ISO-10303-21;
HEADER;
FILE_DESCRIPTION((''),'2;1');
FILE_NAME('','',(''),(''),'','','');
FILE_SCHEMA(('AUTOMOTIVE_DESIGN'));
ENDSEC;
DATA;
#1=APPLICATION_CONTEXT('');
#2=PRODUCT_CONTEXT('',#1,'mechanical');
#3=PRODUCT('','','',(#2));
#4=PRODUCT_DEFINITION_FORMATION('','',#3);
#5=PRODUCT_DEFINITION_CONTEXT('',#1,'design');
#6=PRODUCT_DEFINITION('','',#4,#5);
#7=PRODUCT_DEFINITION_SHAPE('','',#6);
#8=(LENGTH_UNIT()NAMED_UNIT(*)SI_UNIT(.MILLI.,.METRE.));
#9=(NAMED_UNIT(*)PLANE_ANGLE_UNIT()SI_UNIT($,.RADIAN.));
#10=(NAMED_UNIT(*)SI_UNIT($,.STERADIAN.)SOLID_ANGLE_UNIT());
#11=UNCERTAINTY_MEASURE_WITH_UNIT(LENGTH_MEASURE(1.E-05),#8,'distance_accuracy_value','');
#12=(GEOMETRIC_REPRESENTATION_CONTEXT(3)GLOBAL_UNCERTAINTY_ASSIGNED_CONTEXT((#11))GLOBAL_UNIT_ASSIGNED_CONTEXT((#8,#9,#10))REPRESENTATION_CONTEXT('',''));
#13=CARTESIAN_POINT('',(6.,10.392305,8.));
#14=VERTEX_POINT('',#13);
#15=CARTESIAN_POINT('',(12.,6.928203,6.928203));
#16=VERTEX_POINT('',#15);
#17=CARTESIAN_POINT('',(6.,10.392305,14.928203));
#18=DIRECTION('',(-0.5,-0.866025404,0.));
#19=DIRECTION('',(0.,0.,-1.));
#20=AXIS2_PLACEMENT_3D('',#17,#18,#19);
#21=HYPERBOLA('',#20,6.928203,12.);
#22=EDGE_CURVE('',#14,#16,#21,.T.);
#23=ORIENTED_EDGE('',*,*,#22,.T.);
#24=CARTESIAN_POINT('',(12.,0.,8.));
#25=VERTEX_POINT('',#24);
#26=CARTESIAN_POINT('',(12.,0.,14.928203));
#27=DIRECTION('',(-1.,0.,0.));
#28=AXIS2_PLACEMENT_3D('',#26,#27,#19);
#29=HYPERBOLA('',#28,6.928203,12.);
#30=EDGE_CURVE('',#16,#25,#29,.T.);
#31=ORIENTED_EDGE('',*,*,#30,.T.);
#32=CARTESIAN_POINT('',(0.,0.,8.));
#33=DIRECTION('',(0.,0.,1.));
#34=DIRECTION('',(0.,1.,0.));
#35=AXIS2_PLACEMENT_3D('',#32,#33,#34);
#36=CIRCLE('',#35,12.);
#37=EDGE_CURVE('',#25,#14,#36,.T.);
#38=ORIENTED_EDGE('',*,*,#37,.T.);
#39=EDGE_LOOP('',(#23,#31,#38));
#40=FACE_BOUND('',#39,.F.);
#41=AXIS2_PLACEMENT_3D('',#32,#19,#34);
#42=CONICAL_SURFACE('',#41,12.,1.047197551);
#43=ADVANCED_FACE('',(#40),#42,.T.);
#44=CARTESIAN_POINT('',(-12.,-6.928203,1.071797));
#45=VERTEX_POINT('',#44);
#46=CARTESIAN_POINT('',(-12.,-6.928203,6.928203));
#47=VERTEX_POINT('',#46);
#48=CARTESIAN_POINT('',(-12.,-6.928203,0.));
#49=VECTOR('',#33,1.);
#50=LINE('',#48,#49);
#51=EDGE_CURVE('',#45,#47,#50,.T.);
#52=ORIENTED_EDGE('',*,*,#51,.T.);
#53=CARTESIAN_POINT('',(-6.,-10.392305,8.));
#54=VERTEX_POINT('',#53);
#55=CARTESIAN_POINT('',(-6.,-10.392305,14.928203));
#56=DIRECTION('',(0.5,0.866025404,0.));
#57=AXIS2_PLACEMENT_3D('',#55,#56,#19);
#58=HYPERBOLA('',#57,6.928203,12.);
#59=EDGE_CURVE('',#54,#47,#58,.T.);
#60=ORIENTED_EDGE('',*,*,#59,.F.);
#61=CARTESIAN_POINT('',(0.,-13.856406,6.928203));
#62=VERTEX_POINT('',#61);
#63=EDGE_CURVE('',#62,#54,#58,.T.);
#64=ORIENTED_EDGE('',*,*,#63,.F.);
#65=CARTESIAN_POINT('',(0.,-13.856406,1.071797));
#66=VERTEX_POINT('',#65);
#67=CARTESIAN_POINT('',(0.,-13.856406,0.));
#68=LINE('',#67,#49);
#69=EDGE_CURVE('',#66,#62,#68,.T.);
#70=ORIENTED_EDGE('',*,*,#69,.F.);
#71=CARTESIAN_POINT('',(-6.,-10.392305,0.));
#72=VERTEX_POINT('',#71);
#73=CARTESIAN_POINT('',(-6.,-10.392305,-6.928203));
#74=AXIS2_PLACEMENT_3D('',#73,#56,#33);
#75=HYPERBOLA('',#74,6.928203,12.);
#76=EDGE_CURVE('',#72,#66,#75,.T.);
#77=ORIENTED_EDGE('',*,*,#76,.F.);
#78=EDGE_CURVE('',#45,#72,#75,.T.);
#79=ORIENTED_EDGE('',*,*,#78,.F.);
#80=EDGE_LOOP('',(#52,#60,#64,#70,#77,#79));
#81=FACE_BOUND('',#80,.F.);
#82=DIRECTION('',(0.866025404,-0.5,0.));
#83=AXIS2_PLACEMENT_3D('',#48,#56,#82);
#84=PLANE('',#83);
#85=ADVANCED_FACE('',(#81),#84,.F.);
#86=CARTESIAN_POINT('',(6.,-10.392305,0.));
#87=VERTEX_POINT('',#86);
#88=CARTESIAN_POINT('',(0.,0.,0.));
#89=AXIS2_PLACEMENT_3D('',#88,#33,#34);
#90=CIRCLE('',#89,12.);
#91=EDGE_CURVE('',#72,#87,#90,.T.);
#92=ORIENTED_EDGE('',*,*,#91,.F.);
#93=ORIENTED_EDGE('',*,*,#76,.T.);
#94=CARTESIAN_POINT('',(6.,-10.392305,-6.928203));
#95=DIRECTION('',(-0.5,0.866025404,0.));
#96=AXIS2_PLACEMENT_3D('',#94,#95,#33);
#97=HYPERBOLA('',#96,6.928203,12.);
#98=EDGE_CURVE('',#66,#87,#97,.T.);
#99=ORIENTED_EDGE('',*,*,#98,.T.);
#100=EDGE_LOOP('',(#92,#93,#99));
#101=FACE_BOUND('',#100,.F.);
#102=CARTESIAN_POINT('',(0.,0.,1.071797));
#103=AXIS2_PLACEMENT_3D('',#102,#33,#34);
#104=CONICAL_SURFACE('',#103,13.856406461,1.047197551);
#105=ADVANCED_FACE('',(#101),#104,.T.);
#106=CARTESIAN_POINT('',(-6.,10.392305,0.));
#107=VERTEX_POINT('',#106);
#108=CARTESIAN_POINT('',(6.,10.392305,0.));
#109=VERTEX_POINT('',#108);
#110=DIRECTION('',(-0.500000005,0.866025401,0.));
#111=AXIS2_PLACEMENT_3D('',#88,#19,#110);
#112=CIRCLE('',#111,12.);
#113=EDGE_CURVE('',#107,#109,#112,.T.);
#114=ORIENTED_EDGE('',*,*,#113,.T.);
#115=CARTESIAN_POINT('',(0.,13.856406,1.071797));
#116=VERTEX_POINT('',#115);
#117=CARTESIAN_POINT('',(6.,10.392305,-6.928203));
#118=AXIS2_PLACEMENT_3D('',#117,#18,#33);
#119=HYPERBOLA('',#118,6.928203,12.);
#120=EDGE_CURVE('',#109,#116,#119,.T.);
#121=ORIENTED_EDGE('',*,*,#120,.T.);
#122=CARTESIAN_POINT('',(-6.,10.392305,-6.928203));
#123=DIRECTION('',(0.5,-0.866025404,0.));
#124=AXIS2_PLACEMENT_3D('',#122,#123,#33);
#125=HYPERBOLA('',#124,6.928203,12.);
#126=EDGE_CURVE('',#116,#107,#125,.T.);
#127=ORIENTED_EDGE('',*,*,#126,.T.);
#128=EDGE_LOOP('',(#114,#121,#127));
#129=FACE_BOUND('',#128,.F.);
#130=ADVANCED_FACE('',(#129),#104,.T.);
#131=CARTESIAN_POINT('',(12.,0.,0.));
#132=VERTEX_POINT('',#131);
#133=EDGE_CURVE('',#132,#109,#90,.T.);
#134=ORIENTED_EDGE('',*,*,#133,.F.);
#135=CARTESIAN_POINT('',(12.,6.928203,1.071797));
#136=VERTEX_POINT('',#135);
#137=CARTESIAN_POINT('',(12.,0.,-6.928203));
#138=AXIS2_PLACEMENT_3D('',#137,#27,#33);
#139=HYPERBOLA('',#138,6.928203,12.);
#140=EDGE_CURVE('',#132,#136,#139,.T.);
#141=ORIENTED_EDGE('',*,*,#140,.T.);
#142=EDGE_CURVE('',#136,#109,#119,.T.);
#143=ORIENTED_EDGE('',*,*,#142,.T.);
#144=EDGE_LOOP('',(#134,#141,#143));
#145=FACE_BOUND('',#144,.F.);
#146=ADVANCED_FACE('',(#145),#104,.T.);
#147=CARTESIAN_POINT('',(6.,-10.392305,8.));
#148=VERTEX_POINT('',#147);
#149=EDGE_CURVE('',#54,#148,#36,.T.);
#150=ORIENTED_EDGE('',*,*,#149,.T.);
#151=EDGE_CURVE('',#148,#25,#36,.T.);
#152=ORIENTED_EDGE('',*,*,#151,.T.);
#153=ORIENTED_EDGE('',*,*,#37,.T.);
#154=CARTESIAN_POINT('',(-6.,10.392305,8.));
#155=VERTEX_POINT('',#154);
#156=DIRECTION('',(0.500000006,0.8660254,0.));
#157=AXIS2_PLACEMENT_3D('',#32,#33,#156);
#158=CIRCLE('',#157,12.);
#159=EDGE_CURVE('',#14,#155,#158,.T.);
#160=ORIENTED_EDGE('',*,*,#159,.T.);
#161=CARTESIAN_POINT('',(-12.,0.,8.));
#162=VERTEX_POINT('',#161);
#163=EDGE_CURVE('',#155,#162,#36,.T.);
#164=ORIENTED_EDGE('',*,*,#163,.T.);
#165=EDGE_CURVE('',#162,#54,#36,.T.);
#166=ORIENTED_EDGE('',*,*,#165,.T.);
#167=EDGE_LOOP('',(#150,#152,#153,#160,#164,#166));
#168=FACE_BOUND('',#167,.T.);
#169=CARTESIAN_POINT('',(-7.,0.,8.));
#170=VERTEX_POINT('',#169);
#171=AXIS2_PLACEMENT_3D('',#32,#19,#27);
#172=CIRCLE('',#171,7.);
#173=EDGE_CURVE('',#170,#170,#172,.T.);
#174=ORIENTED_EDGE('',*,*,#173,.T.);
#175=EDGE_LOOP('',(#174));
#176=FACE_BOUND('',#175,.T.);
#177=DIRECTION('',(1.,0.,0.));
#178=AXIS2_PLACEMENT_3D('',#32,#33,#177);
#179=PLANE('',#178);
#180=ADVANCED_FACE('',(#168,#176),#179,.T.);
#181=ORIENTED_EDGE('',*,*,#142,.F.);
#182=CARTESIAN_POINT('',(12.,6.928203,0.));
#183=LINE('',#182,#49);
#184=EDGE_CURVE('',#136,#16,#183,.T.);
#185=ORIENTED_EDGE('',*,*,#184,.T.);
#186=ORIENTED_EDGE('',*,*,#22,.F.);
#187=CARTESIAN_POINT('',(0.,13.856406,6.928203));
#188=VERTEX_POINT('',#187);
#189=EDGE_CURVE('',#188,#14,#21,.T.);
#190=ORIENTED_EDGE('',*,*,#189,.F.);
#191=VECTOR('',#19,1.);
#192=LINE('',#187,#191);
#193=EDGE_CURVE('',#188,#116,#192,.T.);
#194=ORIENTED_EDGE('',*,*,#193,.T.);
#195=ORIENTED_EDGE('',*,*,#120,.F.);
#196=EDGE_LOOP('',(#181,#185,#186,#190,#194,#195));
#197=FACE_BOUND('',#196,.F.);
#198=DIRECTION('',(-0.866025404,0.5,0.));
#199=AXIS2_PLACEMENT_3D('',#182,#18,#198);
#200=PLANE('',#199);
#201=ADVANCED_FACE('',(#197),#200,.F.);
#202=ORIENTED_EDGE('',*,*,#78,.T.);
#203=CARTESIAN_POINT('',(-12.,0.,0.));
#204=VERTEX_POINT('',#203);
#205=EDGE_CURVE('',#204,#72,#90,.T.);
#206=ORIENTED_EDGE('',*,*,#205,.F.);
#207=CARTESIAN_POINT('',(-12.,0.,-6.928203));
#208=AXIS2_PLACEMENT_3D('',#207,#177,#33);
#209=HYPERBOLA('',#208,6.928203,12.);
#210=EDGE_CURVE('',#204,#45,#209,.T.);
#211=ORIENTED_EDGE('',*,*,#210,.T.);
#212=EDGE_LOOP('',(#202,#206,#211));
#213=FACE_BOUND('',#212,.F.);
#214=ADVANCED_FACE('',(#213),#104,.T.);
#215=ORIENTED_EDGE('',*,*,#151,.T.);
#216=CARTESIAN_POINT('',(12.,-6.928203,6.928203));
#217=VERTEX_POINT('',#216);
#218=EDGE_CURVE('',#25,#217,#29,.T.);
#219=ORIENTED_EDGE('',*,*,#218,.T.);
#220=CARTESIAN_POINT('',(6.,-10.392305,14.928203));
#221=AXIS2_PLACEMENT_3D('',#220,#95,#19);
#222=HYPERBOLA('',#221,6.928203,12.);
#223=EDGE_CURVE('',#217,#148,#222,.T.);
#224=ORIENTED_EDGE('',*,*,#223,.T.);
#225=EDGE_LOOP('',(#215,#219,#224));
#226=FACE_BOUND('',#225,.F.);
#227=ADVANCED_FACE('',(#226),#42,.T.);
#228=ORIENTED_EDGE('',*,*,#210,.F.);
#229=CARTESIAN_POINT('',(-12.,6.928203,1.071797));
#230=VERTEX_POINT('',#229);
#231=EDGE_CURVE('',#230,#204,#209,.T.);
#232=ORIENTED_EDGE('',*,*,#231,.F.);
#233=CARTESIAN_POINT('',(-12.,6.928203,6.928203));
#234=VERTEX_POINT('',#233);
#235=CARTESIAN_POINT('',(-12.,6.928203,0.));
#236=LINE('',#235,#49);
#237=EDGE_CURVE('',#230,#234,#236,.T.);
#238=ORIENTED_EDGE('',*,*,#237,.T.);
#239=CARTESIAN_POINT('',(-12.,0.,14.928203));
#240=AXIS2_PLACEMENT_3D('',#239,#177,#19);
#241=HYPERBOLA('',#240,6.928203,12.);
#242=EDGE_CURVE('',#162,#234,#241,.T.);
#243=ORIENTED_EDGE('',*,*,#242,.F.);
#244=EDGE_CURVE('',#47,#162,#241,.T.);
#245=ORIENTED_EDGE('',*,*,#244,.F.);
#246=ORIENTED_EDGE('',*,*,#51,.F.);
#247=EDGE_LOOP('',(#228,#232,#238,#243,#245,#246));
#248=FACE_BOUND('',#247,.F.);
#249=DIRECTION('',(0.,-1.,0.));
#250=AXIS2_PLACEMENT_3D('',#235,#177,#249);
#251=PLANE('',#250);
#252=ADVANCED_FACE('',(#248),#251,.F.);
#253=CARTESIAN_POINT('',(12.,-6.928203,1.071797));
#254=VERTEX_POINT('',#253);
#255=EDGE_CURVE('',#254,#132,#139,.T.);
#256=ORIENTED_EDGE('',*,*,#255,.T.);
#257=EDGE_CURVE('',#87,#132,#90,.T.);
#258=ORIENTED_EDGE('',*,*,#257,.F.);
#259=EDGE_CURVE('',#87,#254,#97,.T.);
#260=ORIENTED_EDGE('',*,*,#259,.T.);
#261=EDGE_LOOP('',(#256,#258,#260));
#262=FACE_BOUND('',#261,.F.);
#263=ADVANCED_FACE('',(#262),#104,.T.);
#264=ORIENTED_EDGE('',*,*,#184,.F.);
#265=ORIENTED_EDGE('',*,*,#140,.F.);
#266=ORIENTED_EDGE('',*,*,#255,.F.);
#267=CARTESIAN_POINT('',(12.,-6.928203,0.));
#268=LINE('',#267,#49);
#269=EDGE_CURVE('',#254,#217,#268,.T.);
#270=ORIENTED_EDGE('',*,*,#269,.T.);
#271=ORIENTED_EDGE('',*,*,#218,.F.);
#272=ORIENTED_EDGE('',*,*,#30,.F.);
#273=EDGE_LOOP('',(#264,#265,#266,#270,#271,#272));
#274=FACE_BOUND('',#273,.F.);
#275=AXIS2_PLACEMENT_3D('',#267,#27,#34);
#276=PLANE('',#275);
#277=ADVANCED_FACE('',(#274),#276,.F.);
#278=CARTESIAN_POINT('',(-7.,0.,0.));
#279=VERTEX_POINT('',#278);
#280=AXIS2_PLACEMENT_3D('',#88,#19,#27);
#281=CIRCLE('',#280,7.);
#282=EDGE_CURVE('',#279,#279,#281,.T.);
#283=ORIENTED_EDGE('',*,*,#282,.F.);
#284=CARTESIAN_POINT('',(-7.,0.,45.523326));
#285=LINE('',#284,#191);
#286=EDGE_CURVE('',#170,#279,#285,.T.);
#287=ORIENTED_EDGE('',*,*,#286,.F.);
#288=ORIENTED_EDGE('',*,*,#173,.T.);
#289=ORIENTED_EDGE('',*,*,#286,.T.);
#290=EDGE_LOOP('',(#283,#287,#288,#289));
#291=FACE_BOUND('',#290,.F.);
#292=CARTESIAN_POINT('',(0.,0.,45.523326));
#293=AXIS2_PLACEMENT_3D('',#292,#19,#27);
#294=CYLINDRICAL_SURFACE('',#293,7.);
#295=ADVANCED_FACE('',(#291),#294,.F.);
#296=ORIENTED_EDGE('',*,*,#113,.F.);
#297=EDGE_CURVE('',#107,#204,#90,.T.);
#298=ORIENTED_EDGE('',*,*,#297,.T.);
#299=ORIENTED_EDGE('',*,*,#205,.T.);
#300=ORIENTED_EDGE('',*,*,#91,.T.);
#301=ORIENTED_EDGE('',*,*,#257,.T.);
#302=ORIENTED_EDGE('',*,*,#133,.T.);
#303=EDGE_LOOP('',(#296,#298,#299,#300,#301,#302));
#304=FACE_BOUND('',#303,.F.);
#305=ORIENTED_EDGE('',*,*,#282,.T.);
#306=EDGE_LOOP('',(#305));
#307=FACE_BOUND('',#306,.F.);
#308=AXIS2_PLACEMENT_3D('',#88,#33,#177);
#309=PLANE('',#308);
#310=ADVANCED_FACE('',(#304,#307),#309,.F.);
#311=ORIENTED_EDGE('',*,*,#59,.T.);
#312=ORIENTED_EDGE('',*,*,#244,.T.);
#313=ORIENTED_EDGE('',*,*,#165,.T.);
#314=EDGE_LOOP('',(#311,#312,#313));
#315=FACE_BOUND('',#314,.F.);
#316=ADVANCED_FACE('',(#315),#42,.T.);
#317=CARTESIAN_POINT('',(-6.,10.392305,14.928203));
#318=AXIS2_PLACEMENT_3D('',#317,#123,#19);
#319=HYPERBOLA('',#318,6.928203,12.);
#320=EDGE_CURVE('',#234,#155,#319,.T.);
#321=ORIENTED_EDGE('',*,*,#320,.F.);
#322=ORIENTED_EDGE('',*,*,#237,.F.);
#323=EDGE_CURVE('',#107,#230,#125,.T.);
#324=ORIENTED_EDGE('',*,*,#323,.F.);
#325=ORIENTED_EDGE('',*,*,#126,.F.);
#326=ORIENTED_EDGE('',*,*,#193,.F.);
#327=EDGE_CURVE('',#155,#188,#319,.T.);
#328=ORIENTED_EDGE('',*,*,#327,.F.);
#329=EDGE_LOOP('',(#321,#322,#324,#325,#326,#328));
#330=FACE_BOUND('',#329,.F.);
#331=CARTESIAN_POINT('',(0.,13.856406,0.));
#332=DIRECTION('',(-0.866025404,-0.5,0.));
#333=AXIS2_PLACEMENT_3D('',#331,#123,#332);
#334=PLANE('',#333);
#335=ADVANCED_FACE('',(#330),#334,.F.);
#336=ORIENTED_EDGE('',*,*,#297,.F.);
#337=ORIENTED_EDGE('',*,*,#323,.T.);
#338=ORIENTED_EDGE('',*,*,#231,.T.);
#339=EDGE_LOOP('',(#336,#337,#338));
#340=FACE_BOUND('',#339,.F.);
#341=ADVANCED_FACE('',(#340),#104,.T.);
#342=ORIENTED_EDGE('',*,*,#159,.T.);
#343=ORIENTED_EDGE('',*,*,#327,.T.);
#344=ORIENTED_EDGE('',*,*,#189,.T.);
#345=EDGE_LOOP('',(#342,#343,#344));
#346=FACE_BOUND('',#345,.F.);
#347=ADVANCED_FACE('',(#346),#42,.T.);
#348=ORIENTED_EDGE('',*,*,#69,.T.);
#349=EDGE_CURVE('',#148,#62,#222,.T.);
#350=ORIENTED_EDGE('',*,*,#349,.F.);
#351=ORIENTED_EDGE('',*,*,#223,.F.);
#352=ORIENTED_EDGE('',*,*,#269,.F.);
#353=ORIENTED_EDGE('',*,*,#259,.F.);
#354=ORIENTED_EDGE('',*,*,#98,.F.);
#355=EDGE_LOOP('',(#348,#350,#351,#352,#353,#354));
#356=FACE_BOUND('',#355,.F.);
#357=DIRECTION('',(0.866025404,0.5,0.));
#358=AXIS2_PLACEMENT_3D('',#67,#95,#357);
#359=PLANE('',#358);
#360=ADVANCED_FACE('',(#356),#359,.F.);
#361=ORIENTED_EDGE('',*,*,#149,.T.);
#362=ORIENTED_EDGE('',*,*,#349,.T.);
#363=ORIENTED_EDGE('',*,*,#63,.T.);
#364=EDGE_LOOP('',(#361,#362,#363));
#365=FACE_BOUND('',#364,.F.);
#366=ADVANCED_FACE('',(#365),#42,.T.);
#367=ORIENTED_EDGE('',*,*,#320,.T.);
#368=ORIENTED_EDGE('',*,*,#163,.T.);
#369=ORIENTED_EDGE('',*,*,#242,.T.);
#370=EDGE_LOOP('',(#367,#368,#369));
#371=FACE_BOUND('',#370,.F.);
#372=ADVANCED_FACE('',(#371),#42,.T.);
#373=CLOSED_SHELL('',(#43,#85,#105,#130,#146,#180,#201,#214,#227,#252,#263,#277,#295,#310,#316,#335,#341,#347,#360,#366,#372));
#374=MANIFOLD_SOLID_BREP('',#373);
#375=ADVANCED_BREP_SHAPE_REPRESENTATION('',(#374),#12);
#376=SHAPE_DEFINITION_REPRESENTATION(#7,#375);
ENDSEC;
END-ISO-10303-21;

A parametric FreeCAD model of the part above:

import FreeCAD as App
import Part
import Sketcher
from FreeCAD import Vector
Q = App.Units.Quantity


def add_polygon(sketch, points):
    """Adds a closed chain of lines whose ends are joined by coincident constraints."""
    first, n = sketch.GeometryCount, len(points)
    for a, b in zip(points, points[1:] + points[:1]):
        sketch.addGeometry(Part.LineSegment(App.Vector(*a, 0), App.Vector(*b, 0)), False)
    for i in range(n):
        sketch.addConstraint(Sketcher.Constraint("Coincident", first + i, 2, first + (i + 1) % n, 1))

doc = App.newDocument("Part")
params = doc.addObject("Spreadsheet::Sheet", "Params")
for row, (alias, value) in enumerate([
    ("pad1_length", "8 mm"),
    ("sketch2_height", "8 mm"),
    ("groove_angle", "360 deg"),
    ("sketch3_diameter", "14 mm"),
    ("hole_diameter", "14 mm"),
], start=1):
    params.set(f"A{row}", alias)
    params.set(f"B{row}", "=" + value)
    params.setAlias(f"B{row}", alias)

body = doc.addObject("PartDesign::Body", "Body")

sketch1 = body.newObject("Sketcher::SketchObject", "Sketch")
sketch1.AttachmentSupport = (doc.getObject("XY_Plane"), [""])
sketch1.MapMode = "FlatFace"
add_polygon(sketch1, [(0, -13.856406), (12, -6.928203), (12, 6.928203), (0, 13.856406), (-12, 6.928203), (-12, -6.928203)])
sketch1.addConstraint(Sketcher.Constraint("Vertical", 1))
sketch1.addConstraint(Sketcher.Constraint("Vertical", 4))
sketch1.addConstraint(Sketcher.Constraint("Symmetric", 0, 2, 3, 2, -1, 1))
sketch1.addConstraint(Sketcher.Constraint("Symmetric", 2, 2, 5, 2, -1, 1))
sketch1.addConstraint(Sketcher.Constraint("PointOnObject", 2, 2, -2))
sketch1.addConstraint(Sketcher.Constraint("Parallel", 2, 5))
sketch1.addConstraint(Sketcher.Constraint("Horizontal", 1, 2, 3, 2))
sketch1.addConstraint(Sketcher.Constraint("Angle", 0, Q("30 deg")))
sketch1.addConstraint(Sketcher.Constraint("DistanceX", -1, 1, 0, 2, 12.0))
sketch1.addConstraint(Sketcher.Constraint("DistanceY", 1, 1, 1, 2, 13.856406))
pad1 = body.newObject("PartDesign::Pad", "Pad")
pad1.Profile = sketch1
pad1.setExpression("Length", "Params.pad1_length")

sketch2 = body.newObject("Sketcher::SketchObject", "Sketch001")
sketch2.AttachmentSupport = (doc.getObject("YZ_Plane"), [""])
sketch2.MapMode = "FlatFace"
add_polygon(sketch2, [(12, 8), (13.856406, 6.928203), (13.856406, 1.071797), (12, 0), (14.856406, 0), (14.856406, 8)])
sketch2.addConstraint(Sketcher.Constraint("Vertical", 1))
sketch2.addConstraint(Sketcher.Constraint("Horizontal", 3))
sketch2.addConstraint(Sketcher.Constraint("Vertical", 4))
sketch2.addConstraint(Sketcher.Constraint("Horizontal", 5))
sketch2.addConstraint(Sketcher.Constraint("PointOnObject", 2, 2, -1))
sketch2.addConstraint(Sketcher.Constraint("Vertical", 2, 2, 5, 2))
sketch2.addConstraint(Sketcher.Constraint("Equal", 0, 2))
sketch2.addConstraint(Sketcher.Constraint("DistanceY", 4, 1, 4, 2, 8.0))
sketch2.addConstraint(Sketcher.Constraint("Angle", 0, Q("-30 deg")))
sketch2.addConstraint(Sketcher.Constraint("DistanceX", -1, 1, 2, 2, 12.0))
sketch2.addConstraint(Sketcher.Constraint("DistanceX", 1, 2, 3, 2, 1.0))
sketch2.addConstraint(Sketcher.Constraint("DistanceX", 3, 1, 3, 2, 2.856406))
sketch2.setExpression("Constraints[13]", "Params.sketch2_height")
groove = body.newObject("PartDesign::Groove", "Groove")
groove.Profile = sketch2
groove.ReferenceAxis = (sketch2, ["V_Axis"])
groove.setExpression("Angle", "Params.groove_angle")

sketch3 = body.newObject("Sketcher::SketchObject", "Sketch002")
sketch3.AttachmentSupport = (doc.getObject("XY_Plane"), [""])
sketch3.MapMode = "FlatFace"
sketch3.AttachmentOffset = App.Placement(Vector(0, 0, 8), App.Rotation())
sketch3.addGeometry(Part.Circle(Vector(0, 0, 0), Vector(0, 0, 1), 7), False)
sketch3.addConstraint(Sketcher.Constraint("Coincident", 0, 3, -1, 1))
sketch3.addConstraint(Sketcher.Constraint("Diameter", 0, 14.0))
sketch3.setExpression("Constraints[1]", "Params.sketch3_diameter")
doc.recompute()
hole = body.newObject("PartDesign::Hole", "Hole")
hole.Profile = sketch3
hole.ThreadType = "None"
hole.setExpression("Diameter", "Params.hole_diameter")
hole.DepthType = "ThroughAll"

doc.recompute()
